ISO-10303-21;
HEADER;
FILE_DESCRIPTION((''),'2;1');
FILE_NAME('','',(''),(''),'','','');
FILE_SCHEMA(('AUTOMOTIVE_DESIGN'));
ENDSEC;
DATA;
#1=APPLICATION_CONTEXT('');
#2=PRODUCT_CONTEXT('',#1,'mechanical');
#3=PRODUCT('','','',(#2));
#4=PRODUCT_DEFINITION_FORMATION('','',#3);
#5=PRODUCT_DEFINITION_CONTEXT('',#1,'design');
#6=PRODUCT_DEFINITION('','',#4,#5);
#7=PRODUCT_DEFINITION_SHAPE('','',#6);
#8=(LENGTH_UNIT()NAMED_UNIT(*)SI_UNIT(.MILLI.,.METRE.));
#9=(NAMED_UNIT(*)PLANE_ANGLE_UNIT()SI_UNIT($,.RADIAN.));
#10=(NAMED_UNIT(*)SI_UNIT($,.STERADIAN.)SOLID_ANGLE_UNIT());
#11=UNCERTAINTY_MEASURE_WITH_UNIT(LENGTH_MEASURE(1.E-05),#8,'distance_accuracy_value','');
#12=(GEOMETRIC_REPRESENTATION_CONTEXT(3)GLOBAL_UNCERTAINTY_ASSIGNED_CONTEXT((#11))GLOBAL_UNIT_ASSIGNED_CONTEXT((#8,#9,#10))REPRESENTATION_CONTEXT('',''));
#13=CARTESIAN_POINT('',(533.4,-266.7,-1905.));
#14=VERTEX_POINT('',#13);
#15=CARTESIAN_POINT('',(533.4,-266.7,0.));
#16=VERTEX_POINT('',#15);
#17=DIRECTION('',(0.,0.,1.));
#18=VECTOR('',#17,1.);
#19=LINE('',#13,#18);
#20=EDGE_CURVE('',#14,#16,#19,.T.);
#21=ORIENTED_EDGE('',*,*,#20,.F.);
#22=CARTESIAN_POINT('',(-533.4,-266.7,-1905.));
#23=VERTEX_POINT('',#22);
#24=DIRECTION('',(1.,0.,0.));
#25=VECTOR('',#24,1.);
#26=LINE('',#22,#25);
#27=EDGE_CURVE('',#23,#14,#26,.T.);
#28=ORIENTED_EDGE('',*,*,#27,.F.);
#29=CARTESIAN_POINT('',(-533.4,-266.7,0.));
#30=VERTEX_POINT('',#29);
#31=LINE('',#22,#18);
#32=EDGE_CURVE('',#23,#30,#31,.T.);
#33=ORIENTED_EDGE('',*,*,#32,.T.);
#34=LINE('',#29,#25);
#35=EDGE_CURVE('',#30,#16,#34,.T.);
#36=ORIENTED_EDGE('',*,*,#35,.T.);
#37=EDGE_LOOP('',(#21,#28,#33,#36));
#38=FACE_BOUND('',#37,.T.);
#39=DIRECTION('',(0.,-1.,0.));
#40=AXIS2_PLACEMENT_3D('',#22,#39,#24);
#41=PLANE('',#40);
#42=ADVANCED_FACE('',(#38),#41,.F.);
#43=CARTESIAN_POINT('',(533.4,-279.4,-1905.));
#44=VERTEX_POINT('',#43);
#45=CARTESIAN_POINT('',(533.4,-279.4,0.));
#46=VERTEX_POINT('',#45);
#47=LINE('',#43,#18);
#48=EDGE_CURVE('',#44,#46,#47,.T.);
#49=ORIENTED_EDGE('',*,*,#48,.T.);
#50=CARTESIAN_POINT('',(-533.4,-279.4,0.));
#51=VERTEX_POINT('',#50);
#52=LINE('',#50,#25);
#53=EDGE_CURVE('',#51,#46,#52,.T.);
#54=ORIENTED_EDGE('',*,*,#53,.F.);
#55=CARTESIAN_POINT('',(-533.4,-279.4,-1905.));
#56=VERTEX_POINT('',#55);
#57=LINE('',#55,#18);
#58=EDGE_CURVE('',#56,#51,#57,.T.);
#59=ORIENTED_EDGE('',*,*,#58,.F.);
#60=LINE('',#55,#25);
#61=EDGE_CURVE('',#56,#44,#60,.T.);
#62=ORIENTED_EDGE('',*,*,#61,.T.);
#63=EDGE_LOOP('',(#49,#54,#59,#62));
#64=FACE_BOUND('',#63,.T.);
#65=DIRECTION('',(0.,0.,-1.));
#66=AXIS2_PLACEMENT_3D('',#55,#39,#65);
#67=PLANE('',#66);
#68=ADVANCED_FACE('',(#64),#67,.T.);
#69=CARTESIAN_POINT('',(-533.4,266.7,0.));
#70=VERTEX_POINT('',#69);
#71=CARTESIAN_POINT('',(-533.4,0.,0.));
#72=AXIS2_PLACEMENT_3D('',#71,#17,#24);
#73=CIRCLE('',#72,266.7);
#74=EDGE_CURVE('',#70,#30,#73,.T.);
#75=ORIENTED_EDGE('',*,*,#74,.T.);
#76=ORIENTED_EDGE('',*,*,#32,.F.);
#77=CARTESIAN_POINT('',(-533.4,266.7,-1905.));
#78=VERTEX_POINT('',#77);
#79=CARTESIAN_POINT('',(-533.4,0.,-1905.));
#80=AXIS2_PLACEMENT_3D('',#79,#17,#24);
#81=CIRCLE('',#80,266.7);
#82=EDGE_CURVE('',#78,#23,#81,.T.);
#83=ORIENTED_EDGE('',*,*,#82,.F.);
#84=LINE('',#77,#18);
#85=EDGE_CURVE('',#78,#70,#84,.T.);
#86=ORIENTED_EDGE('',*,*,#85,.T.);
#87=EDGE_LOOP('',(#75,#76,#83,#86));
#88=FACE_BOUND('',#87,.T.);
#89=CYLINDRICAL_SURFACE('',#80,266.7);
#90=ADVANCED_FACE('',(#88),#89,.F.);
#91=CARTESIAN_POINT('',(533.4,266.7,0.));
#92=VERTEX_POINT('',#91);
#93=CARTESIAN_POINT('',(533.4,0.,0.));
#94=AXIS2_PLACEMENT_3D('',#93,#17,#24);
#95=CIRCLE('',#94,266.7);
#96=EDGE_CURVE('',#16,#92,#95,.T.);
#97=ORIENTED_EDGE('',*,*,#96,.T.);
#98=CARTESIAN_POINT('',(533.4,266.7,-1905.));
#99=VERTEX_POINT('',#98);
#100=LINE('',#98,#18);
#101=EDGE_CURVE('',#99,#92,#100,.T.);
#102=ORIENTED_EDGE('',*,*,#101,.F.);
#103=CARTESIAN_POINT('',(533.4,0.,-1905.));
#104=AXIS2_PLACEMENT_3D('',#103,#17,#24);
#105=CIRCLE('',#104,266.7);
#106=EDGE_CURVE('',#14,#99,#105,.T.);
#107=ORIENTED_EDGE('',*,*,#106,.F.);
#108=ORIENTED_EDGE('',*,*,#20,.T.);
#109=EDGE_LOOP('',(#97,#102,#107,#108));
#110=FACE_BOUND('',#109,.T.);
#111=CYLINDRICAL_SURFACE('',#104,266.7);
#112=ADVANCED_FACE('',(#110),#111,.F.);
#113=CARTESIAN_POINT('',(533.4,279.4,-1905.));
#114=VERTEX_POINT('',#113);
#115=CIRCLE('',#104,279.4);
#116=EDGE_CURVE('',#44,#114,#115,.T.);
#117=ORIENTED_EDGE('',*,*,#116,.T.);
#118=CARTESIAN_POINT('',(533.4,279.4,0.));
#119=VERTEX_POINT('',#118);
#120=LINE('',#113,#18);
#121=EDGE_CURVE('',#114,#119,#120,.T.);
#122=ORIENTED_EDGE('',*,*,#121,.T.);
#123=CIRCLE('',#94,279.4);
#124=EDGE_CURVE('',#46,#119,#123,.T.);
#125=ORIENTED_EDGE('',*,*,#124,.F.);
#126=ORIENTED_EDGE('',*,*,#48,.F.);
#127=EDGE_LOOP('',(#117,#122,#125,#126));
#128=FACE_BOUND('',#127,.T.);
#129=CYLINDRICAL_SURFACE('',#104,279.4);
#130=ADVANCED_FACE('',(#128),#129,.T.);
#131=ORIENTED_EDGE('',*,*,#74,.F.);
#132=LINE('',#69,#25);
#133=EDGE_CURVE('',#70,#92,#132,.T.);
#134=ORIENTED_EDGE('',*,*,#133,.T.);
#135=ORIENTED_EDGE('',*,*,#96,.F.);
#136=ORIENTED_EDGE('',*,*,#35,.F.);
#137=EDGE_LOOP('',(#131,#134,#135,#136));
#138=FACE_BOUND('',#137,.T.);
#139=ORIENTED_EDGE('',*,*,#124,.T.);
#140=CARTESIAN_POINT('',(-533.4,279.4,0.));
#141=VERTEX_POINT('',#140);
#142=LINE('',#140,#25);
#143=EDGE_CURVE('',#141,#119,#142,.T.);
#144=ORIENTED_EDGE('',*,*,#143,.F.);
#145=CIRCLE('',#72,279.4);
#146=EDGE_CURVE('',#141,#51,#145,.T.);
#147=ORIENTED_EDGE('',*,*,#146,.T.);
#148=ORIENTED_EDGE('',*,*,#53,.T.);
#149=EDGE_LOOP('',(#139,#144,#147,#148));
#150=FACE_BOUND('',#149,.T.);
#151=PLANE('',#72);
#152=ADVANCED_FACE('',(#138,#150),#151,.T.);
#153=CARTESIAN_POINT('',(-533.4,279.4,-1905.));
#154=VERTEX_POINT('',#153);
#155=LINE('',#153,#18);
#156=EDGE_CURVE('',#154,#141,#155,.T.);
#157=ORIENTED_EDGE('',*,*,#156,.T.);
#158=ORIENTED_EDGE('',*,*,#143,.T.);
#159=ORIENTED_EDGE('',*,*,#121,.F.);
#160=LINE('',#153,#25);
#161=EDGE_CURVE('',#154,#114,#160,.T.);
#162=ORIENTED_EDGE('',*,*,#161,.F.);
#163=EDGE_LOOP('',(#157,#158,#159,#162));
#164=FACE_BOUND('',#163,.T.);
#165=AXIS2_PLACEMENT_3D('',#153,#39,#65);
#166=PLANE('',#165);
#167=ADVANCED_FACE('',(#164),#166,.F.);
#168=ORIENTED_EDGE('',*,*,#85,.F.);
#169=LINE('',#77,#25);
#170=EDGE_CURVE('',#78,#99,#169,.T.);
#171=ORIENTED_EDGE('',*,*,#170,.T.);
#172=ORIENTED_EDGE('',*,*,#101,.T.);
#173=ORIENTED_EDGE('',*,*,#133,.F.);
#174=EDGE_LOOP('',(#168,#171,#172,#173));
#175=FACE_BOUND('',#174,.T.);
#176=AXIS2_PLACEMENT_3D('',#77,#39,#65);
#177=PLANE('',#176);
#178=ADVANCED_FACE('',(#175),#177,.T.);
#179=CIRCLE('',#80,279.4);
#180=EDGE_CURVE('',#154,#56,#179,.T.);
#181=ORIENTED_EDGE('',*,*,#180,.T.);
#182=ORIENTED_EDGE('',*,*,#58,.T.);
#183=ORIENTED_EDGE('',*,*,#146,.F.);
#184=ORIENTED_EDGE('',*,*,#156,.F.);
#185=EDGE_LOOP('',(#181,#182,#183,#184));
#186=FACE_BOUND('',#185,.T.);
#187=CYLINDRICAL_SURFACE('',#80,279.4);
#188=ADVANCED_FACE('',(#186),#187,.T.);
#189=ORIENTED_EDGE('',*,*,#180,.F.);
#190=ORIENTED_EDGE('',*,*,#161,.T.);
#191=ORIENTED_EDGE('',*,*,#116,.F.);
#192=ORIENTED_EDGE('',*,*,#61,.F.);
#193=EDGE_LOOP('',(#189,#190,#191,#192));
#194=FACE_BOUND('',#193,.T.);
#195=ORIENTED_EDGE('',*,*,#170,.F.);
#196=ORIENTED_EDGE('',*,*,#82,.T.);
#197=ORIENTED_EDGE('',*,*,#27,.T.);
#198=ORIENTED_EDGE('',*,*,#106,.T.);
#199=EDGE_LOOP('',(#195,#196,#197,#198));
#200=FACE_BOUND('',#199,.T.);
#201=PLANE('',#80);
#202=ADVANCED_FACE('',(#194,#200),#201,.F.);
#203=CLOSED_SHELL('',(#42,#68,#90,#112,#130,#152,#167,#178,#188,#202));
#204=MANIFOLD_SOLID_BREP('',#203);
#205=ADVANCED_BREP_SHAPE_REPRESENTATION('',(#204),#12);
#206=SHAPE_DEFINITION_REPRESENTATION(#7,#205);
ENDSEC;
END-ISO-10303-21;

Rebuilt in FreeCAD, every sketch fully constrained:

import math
import FreeCAD as App
import Part
import Sketcher
from FreeCAD import Vector
Q = App.Units.Quantity

doc = App.newDocument("Part")
body = doc.addObject("PartDesign::Body", "Body")

# Sketch on XY plane
sketch1 = body.newObject("Sketcher::SketchObject", "Sketch")
sketch1.AttachmentSupport = (doc.getObject("XY_Plane"), [""])
sketch1.MapMode = "FlatFace"
sketch1.addGeometry([
    Part.LineSegment(Vector(533.4, 279.4, 0), Vector(-533.4, 279.4, 0)),  # 0
    Part.ArcOfCircle(Part.Circle(Vector(-533.4, 0, 0), Vector(0, 0, 1), 279.4), math.radians(90), math.radians(270)),  # 1
    Part.LineSegment(Vector(-533.4, -279.4, 0), Vector(533.4, -279.4, 0)),  # 2
    Part.ArcOfCircle(Part.Circle(Vector(533.4, 0, 0), Vector(0, 0, 1), 279.4), math.radians(-90), math.radians(90)),  # 3
    Part.LineSegment(Vector(-533.4, 266.7, 0), Vector(533.4, 266.7, 0)),  # 4
    Part.ArcOfCircle(Part.Circle(Vector(533.4, 0, 0), Vector(0, 0, 1), 266.7), math.radians(-90), math.radians(90)),  # 5
    Part.LineSegment(Vector(533.4, -266.7, 0), Vector(-533.4, -266.7, 0)),  # 6
    Part.ArcOfCircle(Part.Circle(Vector(-533.4, 0, 0), Vector(0, 0, 1), 266.7), math.radians(90), math.radians(270)),  # 7
], False)
sketch1.addConstraint([
    Sketcher.Constraint("Tangent", 0, 2, 1, 1),
    Sketcher.Constraint("Tangent", 1, 2, 2, 1),
    Sketcher.Constraint("Tangent", 2, 2, 3, 1),
    Sketcher.Constraint("Tangent", 3, 2, 0, 1),
    Sketcher.Constraint("Tangent", 4, 2, 5, 2),
    Sketcher.Constraint("Tangent", 5, 1, 6, 1),
    Sketcher.Constraint("Tangent", 6, 2, 7, 2),
    Sketcher.Constraint("Tangent", 7, 1, 4, 1),
    Sketcher.Constraint("Horizontal", 0),
    Sketcher.Constraint("Horizontal", 2),
    Sketcher.Constraint("Horizontal", 4),
    Sketcher.Constraint("Horizontal", 6),
    Sketcher.Constraint("Coincident", 5, 3, 3, 3),
    Sketcher.Constraint("Symmetric", 1, 3, 3, 3, -1, 1),
    Sketcher.Constraint("Vertical", 7, 3, 0, 2),
    Sketcher.Constraint("Radius", 1, Q("11 in")),
    Sketcher.Constraint("Radius", 5, Q("10.5 in")),
    Sketcher.Constraint("DistanceX", 0, 2, 0, 1, Q("42 in")),
])
pad1 = body.newObject("PartDesign::Pad", "Pad")
pad1.Profile = sketch1
pad1.Length = Q("75 in")
pad1.Reversed = True

doc.recompute()
